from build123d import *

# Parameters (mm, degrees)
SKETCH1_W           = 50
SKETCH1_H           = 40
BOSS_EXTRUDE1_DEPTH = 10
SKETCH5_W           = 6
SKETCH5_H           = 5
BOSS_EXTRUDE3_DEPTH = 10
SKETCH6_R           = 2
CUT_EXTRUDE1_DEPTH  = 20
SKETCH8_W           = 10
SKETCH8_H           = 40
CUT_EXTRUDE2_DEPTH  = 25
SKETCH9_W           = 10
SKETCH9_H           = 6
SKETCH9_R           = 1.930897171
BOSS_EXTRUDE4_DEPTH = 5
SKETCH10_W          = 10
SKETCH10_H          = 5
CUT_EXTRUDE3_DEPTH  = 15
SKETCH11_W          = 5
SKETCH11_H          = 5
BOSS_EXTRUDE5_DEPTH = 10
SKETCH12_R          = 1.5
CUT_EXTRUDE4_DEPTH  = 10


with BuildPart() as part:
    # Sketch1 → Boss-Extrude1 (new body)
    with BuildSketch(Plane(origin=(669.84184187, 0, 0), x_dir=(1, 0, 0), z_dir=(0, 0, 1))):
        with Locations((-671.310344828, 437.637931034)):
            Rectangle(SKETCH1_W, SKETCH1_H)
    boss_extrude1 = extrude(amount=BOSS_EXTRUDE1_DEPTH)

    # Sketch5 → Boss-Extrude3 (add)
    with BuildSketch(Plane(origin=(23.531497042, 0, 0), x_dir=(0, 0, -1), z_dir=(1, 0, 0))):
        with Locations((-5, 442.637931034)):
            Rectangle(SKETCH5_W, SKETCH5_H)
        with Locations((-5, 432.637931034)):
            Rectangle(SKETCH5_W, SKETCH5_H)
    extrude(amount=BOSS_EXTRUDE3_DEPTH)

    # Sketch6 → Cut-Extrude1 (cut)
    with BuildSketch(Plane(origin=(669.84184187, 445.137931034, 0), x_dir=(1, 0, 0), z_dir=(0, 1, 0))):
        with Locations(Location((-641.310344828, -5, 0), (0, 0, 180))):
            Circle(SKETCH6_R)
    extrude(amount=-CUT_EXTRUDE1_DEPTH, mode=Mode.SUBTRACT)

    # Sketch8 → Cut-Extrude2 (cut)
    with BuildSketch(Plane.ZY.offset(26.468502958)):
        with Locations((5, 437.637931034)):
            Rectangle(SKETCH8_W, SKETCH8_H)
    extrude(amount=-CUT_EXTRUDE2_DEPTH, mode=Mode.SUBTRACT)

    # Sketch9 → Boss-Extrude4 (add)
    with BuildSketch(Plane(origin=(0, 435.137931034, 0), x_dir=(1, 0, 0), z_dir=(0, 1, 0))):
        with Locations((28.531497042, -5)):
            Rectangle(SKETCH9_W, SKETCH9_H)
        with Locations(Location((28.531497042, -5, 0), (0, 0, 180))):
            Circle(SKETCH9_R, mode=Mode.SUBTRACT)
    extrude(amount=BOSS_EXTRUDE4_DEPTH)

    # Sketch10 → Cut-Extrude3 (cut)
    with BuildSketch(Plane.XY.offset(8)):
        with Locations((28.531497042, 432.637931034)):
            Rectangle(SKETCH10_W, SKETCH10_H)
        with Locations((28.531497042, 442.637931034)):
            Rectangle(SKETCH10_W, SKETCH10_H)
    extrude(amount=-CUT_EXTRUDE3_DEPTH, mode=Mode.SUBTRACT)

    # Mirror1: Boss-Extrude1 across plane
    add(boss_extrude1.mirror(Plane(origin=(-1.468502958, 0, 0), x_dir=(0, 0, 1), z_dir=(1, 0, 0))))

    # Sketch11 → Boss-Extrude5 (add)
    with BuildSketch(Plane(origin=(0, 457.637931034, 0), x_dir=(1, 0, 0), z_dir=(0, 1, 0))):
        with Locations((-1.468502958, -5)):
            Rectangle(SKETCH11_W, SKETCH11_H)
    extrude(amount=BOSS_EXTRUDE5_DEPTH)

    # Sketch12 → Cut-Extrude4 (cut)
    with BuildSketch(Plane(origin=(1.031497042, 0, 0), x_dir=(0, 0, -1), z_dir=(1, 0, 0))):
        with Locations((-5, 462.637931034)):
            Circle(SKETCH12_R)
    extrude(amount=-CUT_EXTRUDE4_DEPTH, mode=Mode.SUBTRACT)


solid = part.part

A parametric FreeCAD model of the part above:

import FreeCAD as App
import Part
import Sketcher
Q = App.Units.Quantity

doc = App.newDocument("Part")
params = doc.addObject("Spreadsheet::Sheet", "Params")
for row, (alias, value) in enumerate([
    ("sketch1_width", "50 mm"),
    ("sketch1_height", "40 mm"),
    ("pad1_length", "10 mm"),
    ("sketch2_width", "5 mm"),
    ("sketch2_height", "6 mm"),
    ("pad2_length", "10 mm"),
    ("sketch3_diameter", "4 mm"),
    ("pocket1_length", "20 mm"),
    ("sketch4_width", "40 mm"),
    ("sketch4_height", "10 mm"),
    ("pocket2_length", "25 mm"),
    ("sketch5_width", "10 mm"),
    ("sketch5_height", "6 mm"),
    ("pad3_length", "5 mm"),
    ("sketch6_width", "10 mm"),
    ("sketch6_height", "5 mm"),
    ("pocket3_length", "15 mm"),
    ("sketch7_width", "5 mm"),
    ("pad4_length", "10 mm"),
    ("sketch8_diameter", "3 mm"),
    ("pocket4_length", "10 mm"),
], start=1):
    params.set(f"A{row}", alias)
    params.set(f"B{row}", "=" + value)
    params.setAlias(f"B{row}", alias)

body = doc.addObject("PartDesign::Body", "Body")

sketch1 = doc.addObject("Sketcher::SketchObject", "Sketch")
body.addObject(sketch1)
sketch1.AttachmentSupport = (doc.XY_Plane, [""])
sketch1.MapMode = "FlatFace"
sketch1.addGeometry(Part.LineSegment(App.Vector(-26, 458, 0), App.Vector(-26, 418, 0)), False)
sketch1.addGeometry(Part.LineSegment(App.Vector(-26, 418, 0), App.Vector(24, 418, 0)), False)
sketch1.addGeometry(Part.LineSegment(App.Vector(24, 418, 0), App.Vector(24, 458, 0)), False)
sketch1.addGeometry(Part.LineSegment(App.Vector(24, 458, 0), App.Vector(-26, 458, 0)), False)
sketch1.addConstraint(Sketcher.Constraint("Coincident", 0, 2, 1, 1))
sketch1.addConstraint(Sketcher.Constraint("Coincident", 1, 2, 2, 1))
sketch1.addConstraint(Sketcher.Constraint("Coincident", 2, 2, 3, 1))
sketch1.addConstraint(Sketcher.Constraint("Coincident", 3, 2, 0, 1))
sketch1.addConstraint(Sketcher.Constraint("Vertical", 0))
sketch1.addConstraint(Sketcher.Constraint("Horizontal", 1))
sketch1.addConstraint(Sketcher.Constraint("Vertical", 2))
sketch1.addConstraint(Sketcher.Constraint("Horizontal", 3))
sketch1.addConstraint(Sketcher.Constraint("DistanceX", 1, 1, 1, 2, Q("50 mm")))
sketch1.addConstraint(Sketcher.Constraint("DistanceY", 0, 2, 0, 1, Q("40 mm")))
sketch1.addConstraint(Sketcher.Constraint("DistanceY", -1, 1, 0, 2, Q("417.637931 mm")))
sketch1.addConstraint(Sketcher.Constraint("DistanceX", 0, 2, -1, 1, Q("26.468503 mm")))
sketch1.setExpression("Constraints[8]", "Params.sketch1_width")
sketch1.setExpression("Constraints[9]", "Params.sketch1_height")
pad1 = doc.addObject("PartDesign::Pad", "Pad")
body.addObject(pad1)
pad1.Profile = sketch1
pad1.setExpression("Length", "Params.pad1_length")

sketch2 = doc.addObject("Sketcher::SketchObject", "Sketch001")
body.addObject(sketch2)
sketch2.AttachmentSupport = (doc.YZ_Plane, [""])
sketch2.MapMode = "FlatFace"
sketch2.AttachmentOffset = App.Placement(App.Vector(0, 0, 23.531497), App.Rotation())
sketch2.addGeometry(Part.LineSegment(App.Vector(445, 8, 0), App.Vector(440, 8, 0)), False)
sketch2.addGeometry(Part.LineSegment(App.Vector(440, 8, 0), App.Vector(440, 2, 0)), False)
sketch2.addGeometry(Part.LineSegment(App.Vector(440, 2, 0), App.Vector(445, 2, 0)), False)
sketch2.addGeometry(Part.LineSegment(App.Vector(445, 2, 0), App.Vector(445, 8, 0)), False)
sketch2.addGeometry(Part.LineSegment(App.Vector(435, 8, 0), App.Vector(430, 8, 0)), False)
sketch2.addGeometry(Part.LineSegment(App.Vector(430, 8, 0), App.Vector(430, 2, 0)), False)
sketch2.addGeometry(Part.LineSegment(App.Vector(430, 2, 0), App.Vector(435, 2, 0)), False)
sketch2.addGeometry(Part.LineSegment(App.Vector(435, 2, 0), App.Vector(435, 8, 0)), False)
sketch2.addConstraint(Sketcher.Constraint("Coincident", 0, 2, 1, 1))
sketch2.addConstraint(Sketcher.Constraint("Coincident", 1, 2, 2, 1))
sketch2.addConstraint(Sketcher.Constraint("Coincident", 2, 2, 3, 1))
sketch2.addConstraint(Sketcher.Constraint("Coincident", 3, 2, 0, 1))
sketch2.addConstraint(Sketcher.Constraint("Coincident", 4, 2, 5, 1))
sketch2.addConstraint(Sketcher.Constraint("Coincident", 5, 2, 6, 1))
sketch2.addConstraint(Sketcher.Constraint("Coincident", 6, 2, 7, 1))
sketch2.addConstraint(Sketcher.Constraint("Coincident", 7, 2, 4, 1))
sketch2.addConstraint(Sketcher.Constraint("Horizontal", 0))
sketch2.addConstraint(Sketcher.Constraint("Vertical", 1))
sketch2.addConstraint(Sketcher.Constraint("Horizontal", 2))
sketch2.addConstraint(Sketcher.Constraint("Vertical", 3))
sketch2.addConstraint(Sketcher.Constraint("Horizontal", 4))
sketch2.addConstraint(Sketcher.Constraint("Vertical", 5))
sketch2.addConstraint(Sketcher.Constraint("Horizontal", 6))
sketch2.addConstraint(Sketcher.Constraint("Vertical", 7))
sketch2.addConstraint(Sketcher.Constraint("Horizontal", 3, 2, 4, 2))
sketch2.addConstraint(Sketcher.Constraint("Horizontal", 2, 2, 5, 2))
sketch2.addConstraint(Sketcher.Constraint("Equal", 2, 4))
sketch2.addConstraint(Sketcher.Constraint("DistanceX", 0, 2, 0, 1, Q("5 mm")))
sketch2.addConstraint(Sketcher.Constraint("DistanceY", 1, 2, 1, 1, Q("6 mm")))
sketch2.addConstraint(Sketcher.Constraint("DistanceY", -1, 1, 0, 2, Q("8 mm")))
sketch2.addConstraint(Sketcher.Constraint("DistanceX", 4, 2, 0, 2, Q("10 mm")))
sketch2.addConstraint(Sketcher.Constraint("DistanceX", -1, 1, 0, 2, Q("440.137931 mm")))
sketch2.setExpression("Constraints[19]", "Params.sketch2_width")
sketch2.setExpression("Constraints[20]", "Params.sketch2_height")
pad2 = doc.addObject("PartDesign::Pad", "Pad001")
body.addObject(pad2)
pad2.Profile = sketch2
pad2.setExpression("Length", "Params.pad2_length")

sketch3 = doc.addObject("Sketcher::SketchObject", "Sketch002")
body.addObject(sketch3)
sketch3.AttachmentSupport = (doc.XZ_Plane, [""])
sketch3.MapMode = "FlatFace"
sketch3.AttachmentOffset = App.Placement(App.Vector(0, 0, -445.137931), App.Rotation())
sketch3.addGeometry(Part.Circle(App.Vector(28.5, 5, 0), App.Vector(0, 0, 1), 2), False)
sketch3.addConstraint(Sketcher.Constraint("Diameter", 0, Q("4 mm")))
sketch3.addConstraint(Sketcher.Constraint("DistanceY", -1, 1, 0, 3, Q("5 mm")))
sketch3.addConstraint(Sketcher.Constraint("DistanceX", -1, 1, 0, 3, Q("28.531497 mm")))
sketch3.setExpression("Constraints[0]", "Params.sketch3_diameter")
pocket1 = doc.addObject("PartDesign::Pocket", "Pocket")
body.addObject(pocket1)
pocket1.Profile = sketch3
pocket1.setExpression("Length", "Params.pocket1_length")
pocket1.Reversed = True

sketch4 = doc.addObject("Sketcher::SketchObject", "Sketch003")
body.addObject(sketch4)
sketch4.AttachmentSupport = (doc.YZ_Plane, [""])
sketch4.MapMode = "FlatFace"
sketch4.AttachmentOffset = App.Placement(App.Vector(0, 0, -26.468503), App.Rotation())
sketch4.addGeometry(Part.LineSegment(App.Vector(458, 0, 0), App.Vector(418, 0, 0)), False)
sketch4.addGeometry(Part.LineSegment(App.Vector(418, 0, 0), App.Vector(418, 10, 0)), False)
sketch4.addGeometry(Part.LineSegment(App.Vector(418, 10, 0), App.Vector(458, 10, 0)), False)
sketch4.addGeometry(Part.LineSegment(App.Vector(458, 10, 0), App.Vector(458, 0, 0)), False)
sketch4.addConstraint(Sketcher.Constraint("Coincident", 0, 2, 1, 1))
sketch4.addConstraint(Sketcher.Constraint("Coincident", 1, 2, 2, 1))
sketch4.addConstraint(Sketcher.Constraint("Coincident", 2, 2, 3, 1))
sketch4.addConstraint(Sketcher.Constraint("Coincident", 3, 2, 0, 1))
sketch4.addConstraint(Sketcher.Constraint("Horizontal", 0))
sketch4.addConstraint(Sketcher.Constraint("Vertical", 1))
sketch4.addConstraint(Sketcher.Constraint("Horizontal", 2))
sketch4.addConstraint(Sketcher.Constraint("Vertical", 3))
sketch4.addConstraint(Sketcher.Constraint("PointOnObject", 0, 2, -1))
sketch4.addConstraint(Sketcher.Constraint("DistanceX", 0, 2, 0, 1, Q("40 mm")))
sketch4.addConstraint(Sketcher.Constraint("DistanceY", 1, 1, 1, 2, Q("10 mm")))
sketch4.addConstraint(Sketcher.Constraint("DistanceX", -1, 1, 0, 2, Q("417.637931 mm")))
sketch4.setExpression("Constraints[9]", "Params.sketch4_width")
sketch4.setExpression("Constraints[10]", "Params.sketch4_height")
pocket2 = doc.addObject("PartDesign::Pocket", "Pocket001")
body.addObject(pocket2)
pocket2.Profile = sketch4
pocket2.setExpression("Length", "Params.pocket2_length")
pocket2.Reversed = True

sketch5 = doc.addObject("Sketcher::SketchObject", "Sketch004")
body.addObject(sketch5)
sketch5.AttachmentSupport = (doc.XZ_Plane, [""])
sketch5.MapMode = "FlatFace"
sketch5.AttachmentOffset = App.Placement(App.Vector(0, 0, -435.137931), App.Rotation())
sketch5.addGeometry(Part.LineSegment(App.Vector(23.5, 2, 0), App.Vector(23.5, 8, 0)), False)
sketch5.addGeometry(Part.LineSegment(App.Vector(23.5, 8, 0), App.Vector(33.5, 8, 0)), False)
sketch5.addGeometry(Part.LineSegment(App.Vector(33.5, 8, 0), App.Vector(33.5, 2, 0)), False)
sketch5.addGeometry(Part.LineSegment(App.Vector(33.5, 2, 0), App.Vector(23.5, 2, 0)), False)
sketch5.addGeometry(Part.Circle(App.Vector(28.5, 5, 0), App.Vector(0, 0, 1), 1.9), False)
sketch5.addConstraint(Sketcher.Constraint("Coincident", 0, 2, 1, 1))
sketch5.addConstraint(Sketcher.Constraint("Coincident", 1, 2, 2, 1))
sketch5.addConstraint(Sketcher.Constraint("Coincident", 2, 2, 3, 1))
sketch5.addConstraint(Sketcher.Constraint("Coincident", 3, 2, 0, 1))
sketch5.addConstraint(Sketcher.Constraint("Vertical", 0))
sketch5.addConstraint(Sketcher.Constraint("Horizontal", 1))
sketch5.addConstraint(Sketcher.Constraint("Vertical", 2))
sketch5.addConstraint(Sketcher.Constraint("Horizontal", 3))
sketch5.addConstraint(Sketcher.Constraint("DistanceX", 1, 1, 1, 2, Q("10 mm")))
sketch5.addConstraint(Sketcher.Constraint("DistanceY", 0, 1, 0, 2, Q("6 mm")))
sketch5.addConstraint(Sketcher.Constraint("DistanceY", -1, 1, 4, 3, Q("5 mm")))
sketch5.addConstraint(Sketcher.Constraint("DistanceY", -1, 1, 0, 2, Q("8 mm")))
sketch5.addConstraint(Sketcher.Constraint("DistanceX", 0, 2, 4, 3, Q("5 mm")))
sketch5.addConstraint(Sketcher.Constraint("Diameter", 4, Q("3.861794 mm")))
sketch5.addConstraint(Sketcher.Constraint("DistanceX", -1, 1, 4, 3, Q("28.531497 mm")))
sketch5.setExpression("Constraints[8]", "Params.sketch5_width")
sketch5.setExpression("Constraints[9]", "Params.sketch5_height")
pad3 = doc.addObject("PartDesign::Pad", "Pad002")
body.addObject(pad3)
pad3.Profile = sketch5
pad3.setExpression("Length", "Params.pad3_length")
pad3.Reversed = True

sketch6 = doc.addObject("Sketcher::SketchObject", "Sketch005")
body.addObject(sketch6)
sketch6.AttachmentSupport = (doc.XY_Plane, [""])
sketch6.MapMode = "FlatFace"
sketch6.AttachmentOffset = App.Placement(App.Vector(0, 0, 8), App.Rotation())
sketch6.addGeometry(Part.LineSegment(App.Vector(24, 435, 0), App.Vector(24, 430, 0)), False)
sketch6.addGeometry(Part.LineSegment(App.Vector(24, 430, 0), App.Vector(34, 430, 0)), False)
sketch6.addGeometry(Part.LineSegment(App.Vector(34, 430, 0), App.Vector(34, 435, 0)), False)
sketch6.addGeometry(Part.LineSegment(App.Vector(34, 435, 0), App.Vector(24, 435, 0)), False)
sketch6.addGeometry(Part.LineSegment(App.Vector(24, 445, 0), App.Vector(24, 440, 0)), False)
sketch6.addGeometry(Part.LineSegment(App.Vector(24, 440, 0), App.Vector(34, 440, 0)), False)
sketch6.addGeometry(Part.LineSegment(App.Vector(34, 440, 0), App.Vector(34, 445, 0)), False)
sketch6.addGeometry(Part.LineSegment(App.Vector(34, 445, 0), App.Vector(24, 445, 0)), False)
sketch6.addConstraint(Sketcher.Constraint("Coincident", 0, 2, 1, 1))
sketch6.addConstraint(Sketcher.Constraint("Coincident", 1, 2, 2, 1))
sketch6.addConstraint(Sketcher.Constraint("Coincident", 2, 2, 3, 1))
sketch6.addConstraint(Sketcher.Constraint("Coincident", 3, 2, 0, 1))
sketch6.addConstraint(Sketcher.Constraint("Coincident", 4, 2, 5, 1))
sketch6.addConstraint(Sketcher.Constraint("Coincident", 5, 2, 6, 1))
sketch6.addConstraint(Sketcher.Constraint("Coincident", 6, 2, 7, 1))
sketch6.addConstraint(Sketcher.Constraint("Coincident", 7, 2, 4, 1))
sketch6.addConstraint(Sketcher.Constraint("Vertical", 0))
sketch6.addConstraint(Sketcher.Constraint("Horizontal", 1))
sketch6.addConstraint(Sketcher.Constraint("Vertical", 2))
sketch6.addConstraint(Sketcher.Constraint("Horizontal", 3))
sketch6.addConstraint(Sketcher.Constraint("Vertical", 4))
sketch6.addConstraint(Sketcher.Constraint("Horizontal", 5))
sketch6.addConstraint(Sketcher.Constraint("Vertical", 6))
sketch6.addConstraint(Sketcher.Constraint("Horizontal", 7))
sketch6.addConstraint(Sketcher.Constraint("Vertical", 3, 2, 4, 2))
sketch6.addConstraint(Sketcher.Constraint("Vertical", 2, 2, 5, 2))
sketch6.addConstraint(Sketcher.Constraint("Equal", 2, 4))
sketch6.addConstraint(Sketcher.Constraint("DistanceX", 1, 1, 1, 2, Q("10 mm")))
sketch6.addConstraint(Sketcher.Constraint("DistanceY", 0, 2, 0, 1, Q("5 mm")))
sketch6.addConstraint(Sketcher.Constraint("DistanceY", 3, 2, 4, 2, Q("5 mm")))
sketch6.addConstraint(Sketcher.Constraint("DistanceY", -1, 1, 0, 2, Q("430.137931 mm")))
sketch6.addConstraint(Sketcher.Constraint("DistanceX", -1, 1, 0, 2, Q("23.531497 mm")))
sketch6.setExpression("Constraints[19]", "Params.sketch6_width")
sketch6.setExpression("Constraints[20]", "Params.sketch6_height")
pocket3 = doc.addObject("PartDesign::Pocket", "Pocket002")
body.addObject(pocket3)
pocket3.Profile = sketch6
pocket3.setExpression("Length", "Params.pocket3_length")
doc.recompute()

datumplane = doc.addObject("PartDesign::Plane", "DatumPlane")
body.addObject(datumplane)
datumplane.AttachmentSupport = (doc.YZ_Plane, [""])
datumplane.MapMode = "FlatFace"
datumplane.AttachmentOffset = App.Placement(App.Vector(0, 0, -1.468503), App.Rotation())
mirrored = doc.addObject("PartDesign::Mirrored", "Mirrored")
body.addObject(mirrored)
mirrored.Originals = [pad1]
mirrored.MirrorPlane = (datumplane, [""])
body.Tip = mirrored

sketch7 = doc.addObject("Sketcher::SketchObject", "Sketch006")
body.addObject(sketch7)
sketch7.AttachmentSupport = (doc.XZ_Plane, [""])
sketch7.MapMode = "FlatFace"
sketch7.AttachmentOffset = App.Placement(App.Vector(0, 0, -457.637931), App.Rotation())
sketch7.addGeometry(Part.LineSegment(App.Vector(-4, 2, 0), App.Vector(-4, 8, 0)), False)
sketch7.addGeometry(Part.LineSegment(App.Vector(-4, 8, 0), App.Vector(1, 8, 0)), False)
sketch7.addGeometry(Part.LineSegment(App.Vector(1, 8, 0), App.Vector(1, 2, 0)), False)
sketch7.addGeometry(Part.LineSegment(App.Vector(1, 2, 0), App.Vector(-4, 2, 0)), False)
sketch7.addConstraint(Sketcher.Constraint("Coincident", 0, 2, 1, 1))
sketch7.addConstraint(Sketcher.Constraint("Coincident", 1, 2, 2, 1))
sketch7.addConstraint(Sketcher.Constraint("Coincident", 2, 2, 3, 1))
sketch7.addConstraint(Sketcher.Constraint("Coincident", 3, 2, 0, 1))
sketch7.addConstraint(Sketcher.Constraint("Vertical", 0))
sketch7.addConstraint(Sketcher.Constraint("Horizontal", 1))
sketch7.addConstraint(Sketcher.Constraint("Vertical", 2))
sketch7.addConstraint(Sketcher.Constraint("Horizontal", 3))
sketch7.addConstraint(Sketcher.Constraint("Equal", 3, 0))
sketch7.addConstraint(Sketcher.Constraint("DistanceX", 1, 1, 1, 2, Q("5 mm")))
sketch7.addConstraint(Sketcher.Constraint("DistanceY", -1, 1, 0, 2, Q("7.5 mm")))
sketch7.addConstraint(Sketcher.Constraint("DistanceX", 0, 2, -1, 1, Q("3.968503 mm")))
sketch7.setExpression("Constraints[9]", "Params.sketch7_width")
pad4 = doc.addObject("PartDesign::Pad", "Pad003")
body.addObject(pad4)
pad4.Profile = sketch7
pad4.setExpression("Length", "Params.pad4_length")
pad4.Reversed = True

sketch8 = doc.addObject("Sketcher::SketchObject", "Sketch007")
body.addObject(sketch8)
sketch8.AttachmentSupport = (doc.YZ_Plane, [""])
sketch8.MapMode = "FlatFace"
sketch8.AttachmentOffset = App.Placement(App.Vector(0, 0, 1.031497), App.Rotation())
sketch8.addGeometry(Part.Circle(App.Vector(462.6, 5, 0), App.Vector(0, 0, 1), 1.5), False)
sketch8.addConstraint(Sketcher.Constraint("Diameter", 0, Q("3 mm")))
sketch8.addConstraint(Sketcher.Constraint("DistanceY", -1, 1, 0, 3, Q("5 mm")))
sketch8.addConstraint(Sketcher.Constraint("DistanceX", -1, 1, 0, 3, Q("462.637931 mm")))
sketch8.setExpression("Constraints[0]", "Params.sketch8_diameter")
pocket4 = doc.addObject("PartDesign::Pocket", "Pocket003")
body.addObject(pocket4)
pocket4.Profile = sketch8
pocket4.setExpression("Length", "Params.pocket4_length")

doc.recompute()
